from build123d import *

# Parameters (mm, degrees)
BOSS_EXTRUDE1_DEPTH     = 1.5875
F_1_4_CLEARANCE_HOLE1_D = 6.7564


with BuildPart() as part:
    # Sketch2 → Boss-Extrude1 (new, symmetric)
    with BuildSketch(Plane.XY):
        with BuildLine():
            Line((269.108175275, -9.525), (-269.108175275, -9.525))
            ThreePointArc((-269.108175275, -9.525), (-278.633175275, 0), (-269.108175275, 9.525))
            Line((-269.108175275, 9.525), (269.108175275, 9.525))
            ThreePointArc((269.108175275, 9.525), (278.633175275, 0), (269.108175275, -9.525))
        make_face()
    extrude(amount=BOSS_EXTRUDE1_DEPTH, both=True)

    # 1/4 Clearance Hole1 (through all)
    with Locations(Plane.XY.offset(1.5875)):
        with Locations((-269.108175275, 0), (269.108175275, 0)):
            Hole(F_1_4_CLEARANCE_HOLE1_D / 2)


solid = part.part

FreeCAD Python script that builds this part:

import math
import FreeCAD as App
import Part
import Sketcher
from FreeCAD import Vector
Q = App.Units.Quantity

doc = App.newDocument("Part")
body = doc.addObject("PartDesign::Body", "Body")

sketch1 = body.newObject("Sketcher::SketchObject", "Sketch")
sketch1.AttachmentSupport = (doc.getObject("XY_Plane"), [""])
sketch1.MapMode = "FlatFace"
sketch1.addGeometry(Part.LineSegment(Vector(-269.108175, -9.525, 0), Vector(269.108175, -9.525, 0)), False)
sketch1.addGeometry(Part.ArcOfCircle(Part.Circle(Vector(269.108175, 0, 0), Vector(0, 0, 1), 9.525), math.radians(-90), math.radians(90)), False)
sketch1.addGeometry(Part.LineSegment(Vector(269.108175, 9.525, 0), Vector(-269.108175, 9.525, 0)), False)
sketch1.addGeometry(Part.ArcOfCircle(Part.Circle(Vector(-269.108175, 0, 0), Vector(0, 0, 1), 9.525), math.radians(90), math.radians(270)), False)
sketch1.addConstraint(Sketcher.Constraint("Tangent", 0, 2, 1, 1))
sketch1.addConstraint(Sketcher.Constraint("Tangent", 1, 2, 2, 1))
sketch1.addConstraint(Sketcher.Constraint("Tangent", 2, 2, 3, 1))
sketch1.addConstraint(Sketcher.Constraint("Tangent", 3, 2, 0, 1))
sketch1.addConstraint(Sketcher.Constraint("Horizontal", 0))
sketch1.addConstraint(Sketcher.Constraint("Horizontal", 2))
sketch1.addConstraint(Sketcher.Constraint("Symmetric", 1, 3, 3, 3, -1, 1))
sketch1.addConstraint(Sketcher.Constraint("Radius", 1, Q("0.375 in")))
sketch1.addConstraint(Sketcher.Constraint("DistanceX", 0, 1, 0, 2, 538.216351))
pad1 = body.newObject("PartDesign::Pad", "Pad")
pad1.Profile = sketch1
pad1.Length = Q("0.125 in")
pad1.Midplane = True

sketch2 = body.newObject("Sketcher::SketchObject", "Sketch001")
sketch2.AttachmentSupport = (doc.getObject("XY_Plane"), [""])
sketch2.MapMode = "FlatFace"
sketch2.AttachmentOffset = App.Placement(Vector(0, 0, 0.0625 * 25.4), App.Rotation())
sketch2.addGeometry(Part.Circle(Vector(-269.108175, 0, 0), Vector(0, 0, 1), 3.3782), False)
sketch2.addGeometry(Part.Circle(Vector(269.108175, 0, 0), Vector(0, 0, 1), 3.3782), False)
sketch2.addConstraint(Sketcher.Constraint("Equal", 0, 1))
sketch2.addConstraint(Sketcher.Constraint("Symmetric", 0, 3, 1, 3, -1, 1))
sketch2.addConstraint(Sketcher.Constraint("PointOnObject", 0, 3, -1))
sketch2.addConstraint(Sketcher.Constraint("Diameter", 0, Q("0.266 in")))
sketch2.addConstraint(Sketcher.Constraint("DistanceX", 0, 3, 1, 3, 538.216351))
doc.recompute()
hole = body.newObject("PartDesign::Hole", "Hole")
hole.Profile = sketch2
hole.ThreadType = "None"
hole.Diameter = Q("0.266 in")
hole.DepthType = "ThroughAll"

doc.recompute()
